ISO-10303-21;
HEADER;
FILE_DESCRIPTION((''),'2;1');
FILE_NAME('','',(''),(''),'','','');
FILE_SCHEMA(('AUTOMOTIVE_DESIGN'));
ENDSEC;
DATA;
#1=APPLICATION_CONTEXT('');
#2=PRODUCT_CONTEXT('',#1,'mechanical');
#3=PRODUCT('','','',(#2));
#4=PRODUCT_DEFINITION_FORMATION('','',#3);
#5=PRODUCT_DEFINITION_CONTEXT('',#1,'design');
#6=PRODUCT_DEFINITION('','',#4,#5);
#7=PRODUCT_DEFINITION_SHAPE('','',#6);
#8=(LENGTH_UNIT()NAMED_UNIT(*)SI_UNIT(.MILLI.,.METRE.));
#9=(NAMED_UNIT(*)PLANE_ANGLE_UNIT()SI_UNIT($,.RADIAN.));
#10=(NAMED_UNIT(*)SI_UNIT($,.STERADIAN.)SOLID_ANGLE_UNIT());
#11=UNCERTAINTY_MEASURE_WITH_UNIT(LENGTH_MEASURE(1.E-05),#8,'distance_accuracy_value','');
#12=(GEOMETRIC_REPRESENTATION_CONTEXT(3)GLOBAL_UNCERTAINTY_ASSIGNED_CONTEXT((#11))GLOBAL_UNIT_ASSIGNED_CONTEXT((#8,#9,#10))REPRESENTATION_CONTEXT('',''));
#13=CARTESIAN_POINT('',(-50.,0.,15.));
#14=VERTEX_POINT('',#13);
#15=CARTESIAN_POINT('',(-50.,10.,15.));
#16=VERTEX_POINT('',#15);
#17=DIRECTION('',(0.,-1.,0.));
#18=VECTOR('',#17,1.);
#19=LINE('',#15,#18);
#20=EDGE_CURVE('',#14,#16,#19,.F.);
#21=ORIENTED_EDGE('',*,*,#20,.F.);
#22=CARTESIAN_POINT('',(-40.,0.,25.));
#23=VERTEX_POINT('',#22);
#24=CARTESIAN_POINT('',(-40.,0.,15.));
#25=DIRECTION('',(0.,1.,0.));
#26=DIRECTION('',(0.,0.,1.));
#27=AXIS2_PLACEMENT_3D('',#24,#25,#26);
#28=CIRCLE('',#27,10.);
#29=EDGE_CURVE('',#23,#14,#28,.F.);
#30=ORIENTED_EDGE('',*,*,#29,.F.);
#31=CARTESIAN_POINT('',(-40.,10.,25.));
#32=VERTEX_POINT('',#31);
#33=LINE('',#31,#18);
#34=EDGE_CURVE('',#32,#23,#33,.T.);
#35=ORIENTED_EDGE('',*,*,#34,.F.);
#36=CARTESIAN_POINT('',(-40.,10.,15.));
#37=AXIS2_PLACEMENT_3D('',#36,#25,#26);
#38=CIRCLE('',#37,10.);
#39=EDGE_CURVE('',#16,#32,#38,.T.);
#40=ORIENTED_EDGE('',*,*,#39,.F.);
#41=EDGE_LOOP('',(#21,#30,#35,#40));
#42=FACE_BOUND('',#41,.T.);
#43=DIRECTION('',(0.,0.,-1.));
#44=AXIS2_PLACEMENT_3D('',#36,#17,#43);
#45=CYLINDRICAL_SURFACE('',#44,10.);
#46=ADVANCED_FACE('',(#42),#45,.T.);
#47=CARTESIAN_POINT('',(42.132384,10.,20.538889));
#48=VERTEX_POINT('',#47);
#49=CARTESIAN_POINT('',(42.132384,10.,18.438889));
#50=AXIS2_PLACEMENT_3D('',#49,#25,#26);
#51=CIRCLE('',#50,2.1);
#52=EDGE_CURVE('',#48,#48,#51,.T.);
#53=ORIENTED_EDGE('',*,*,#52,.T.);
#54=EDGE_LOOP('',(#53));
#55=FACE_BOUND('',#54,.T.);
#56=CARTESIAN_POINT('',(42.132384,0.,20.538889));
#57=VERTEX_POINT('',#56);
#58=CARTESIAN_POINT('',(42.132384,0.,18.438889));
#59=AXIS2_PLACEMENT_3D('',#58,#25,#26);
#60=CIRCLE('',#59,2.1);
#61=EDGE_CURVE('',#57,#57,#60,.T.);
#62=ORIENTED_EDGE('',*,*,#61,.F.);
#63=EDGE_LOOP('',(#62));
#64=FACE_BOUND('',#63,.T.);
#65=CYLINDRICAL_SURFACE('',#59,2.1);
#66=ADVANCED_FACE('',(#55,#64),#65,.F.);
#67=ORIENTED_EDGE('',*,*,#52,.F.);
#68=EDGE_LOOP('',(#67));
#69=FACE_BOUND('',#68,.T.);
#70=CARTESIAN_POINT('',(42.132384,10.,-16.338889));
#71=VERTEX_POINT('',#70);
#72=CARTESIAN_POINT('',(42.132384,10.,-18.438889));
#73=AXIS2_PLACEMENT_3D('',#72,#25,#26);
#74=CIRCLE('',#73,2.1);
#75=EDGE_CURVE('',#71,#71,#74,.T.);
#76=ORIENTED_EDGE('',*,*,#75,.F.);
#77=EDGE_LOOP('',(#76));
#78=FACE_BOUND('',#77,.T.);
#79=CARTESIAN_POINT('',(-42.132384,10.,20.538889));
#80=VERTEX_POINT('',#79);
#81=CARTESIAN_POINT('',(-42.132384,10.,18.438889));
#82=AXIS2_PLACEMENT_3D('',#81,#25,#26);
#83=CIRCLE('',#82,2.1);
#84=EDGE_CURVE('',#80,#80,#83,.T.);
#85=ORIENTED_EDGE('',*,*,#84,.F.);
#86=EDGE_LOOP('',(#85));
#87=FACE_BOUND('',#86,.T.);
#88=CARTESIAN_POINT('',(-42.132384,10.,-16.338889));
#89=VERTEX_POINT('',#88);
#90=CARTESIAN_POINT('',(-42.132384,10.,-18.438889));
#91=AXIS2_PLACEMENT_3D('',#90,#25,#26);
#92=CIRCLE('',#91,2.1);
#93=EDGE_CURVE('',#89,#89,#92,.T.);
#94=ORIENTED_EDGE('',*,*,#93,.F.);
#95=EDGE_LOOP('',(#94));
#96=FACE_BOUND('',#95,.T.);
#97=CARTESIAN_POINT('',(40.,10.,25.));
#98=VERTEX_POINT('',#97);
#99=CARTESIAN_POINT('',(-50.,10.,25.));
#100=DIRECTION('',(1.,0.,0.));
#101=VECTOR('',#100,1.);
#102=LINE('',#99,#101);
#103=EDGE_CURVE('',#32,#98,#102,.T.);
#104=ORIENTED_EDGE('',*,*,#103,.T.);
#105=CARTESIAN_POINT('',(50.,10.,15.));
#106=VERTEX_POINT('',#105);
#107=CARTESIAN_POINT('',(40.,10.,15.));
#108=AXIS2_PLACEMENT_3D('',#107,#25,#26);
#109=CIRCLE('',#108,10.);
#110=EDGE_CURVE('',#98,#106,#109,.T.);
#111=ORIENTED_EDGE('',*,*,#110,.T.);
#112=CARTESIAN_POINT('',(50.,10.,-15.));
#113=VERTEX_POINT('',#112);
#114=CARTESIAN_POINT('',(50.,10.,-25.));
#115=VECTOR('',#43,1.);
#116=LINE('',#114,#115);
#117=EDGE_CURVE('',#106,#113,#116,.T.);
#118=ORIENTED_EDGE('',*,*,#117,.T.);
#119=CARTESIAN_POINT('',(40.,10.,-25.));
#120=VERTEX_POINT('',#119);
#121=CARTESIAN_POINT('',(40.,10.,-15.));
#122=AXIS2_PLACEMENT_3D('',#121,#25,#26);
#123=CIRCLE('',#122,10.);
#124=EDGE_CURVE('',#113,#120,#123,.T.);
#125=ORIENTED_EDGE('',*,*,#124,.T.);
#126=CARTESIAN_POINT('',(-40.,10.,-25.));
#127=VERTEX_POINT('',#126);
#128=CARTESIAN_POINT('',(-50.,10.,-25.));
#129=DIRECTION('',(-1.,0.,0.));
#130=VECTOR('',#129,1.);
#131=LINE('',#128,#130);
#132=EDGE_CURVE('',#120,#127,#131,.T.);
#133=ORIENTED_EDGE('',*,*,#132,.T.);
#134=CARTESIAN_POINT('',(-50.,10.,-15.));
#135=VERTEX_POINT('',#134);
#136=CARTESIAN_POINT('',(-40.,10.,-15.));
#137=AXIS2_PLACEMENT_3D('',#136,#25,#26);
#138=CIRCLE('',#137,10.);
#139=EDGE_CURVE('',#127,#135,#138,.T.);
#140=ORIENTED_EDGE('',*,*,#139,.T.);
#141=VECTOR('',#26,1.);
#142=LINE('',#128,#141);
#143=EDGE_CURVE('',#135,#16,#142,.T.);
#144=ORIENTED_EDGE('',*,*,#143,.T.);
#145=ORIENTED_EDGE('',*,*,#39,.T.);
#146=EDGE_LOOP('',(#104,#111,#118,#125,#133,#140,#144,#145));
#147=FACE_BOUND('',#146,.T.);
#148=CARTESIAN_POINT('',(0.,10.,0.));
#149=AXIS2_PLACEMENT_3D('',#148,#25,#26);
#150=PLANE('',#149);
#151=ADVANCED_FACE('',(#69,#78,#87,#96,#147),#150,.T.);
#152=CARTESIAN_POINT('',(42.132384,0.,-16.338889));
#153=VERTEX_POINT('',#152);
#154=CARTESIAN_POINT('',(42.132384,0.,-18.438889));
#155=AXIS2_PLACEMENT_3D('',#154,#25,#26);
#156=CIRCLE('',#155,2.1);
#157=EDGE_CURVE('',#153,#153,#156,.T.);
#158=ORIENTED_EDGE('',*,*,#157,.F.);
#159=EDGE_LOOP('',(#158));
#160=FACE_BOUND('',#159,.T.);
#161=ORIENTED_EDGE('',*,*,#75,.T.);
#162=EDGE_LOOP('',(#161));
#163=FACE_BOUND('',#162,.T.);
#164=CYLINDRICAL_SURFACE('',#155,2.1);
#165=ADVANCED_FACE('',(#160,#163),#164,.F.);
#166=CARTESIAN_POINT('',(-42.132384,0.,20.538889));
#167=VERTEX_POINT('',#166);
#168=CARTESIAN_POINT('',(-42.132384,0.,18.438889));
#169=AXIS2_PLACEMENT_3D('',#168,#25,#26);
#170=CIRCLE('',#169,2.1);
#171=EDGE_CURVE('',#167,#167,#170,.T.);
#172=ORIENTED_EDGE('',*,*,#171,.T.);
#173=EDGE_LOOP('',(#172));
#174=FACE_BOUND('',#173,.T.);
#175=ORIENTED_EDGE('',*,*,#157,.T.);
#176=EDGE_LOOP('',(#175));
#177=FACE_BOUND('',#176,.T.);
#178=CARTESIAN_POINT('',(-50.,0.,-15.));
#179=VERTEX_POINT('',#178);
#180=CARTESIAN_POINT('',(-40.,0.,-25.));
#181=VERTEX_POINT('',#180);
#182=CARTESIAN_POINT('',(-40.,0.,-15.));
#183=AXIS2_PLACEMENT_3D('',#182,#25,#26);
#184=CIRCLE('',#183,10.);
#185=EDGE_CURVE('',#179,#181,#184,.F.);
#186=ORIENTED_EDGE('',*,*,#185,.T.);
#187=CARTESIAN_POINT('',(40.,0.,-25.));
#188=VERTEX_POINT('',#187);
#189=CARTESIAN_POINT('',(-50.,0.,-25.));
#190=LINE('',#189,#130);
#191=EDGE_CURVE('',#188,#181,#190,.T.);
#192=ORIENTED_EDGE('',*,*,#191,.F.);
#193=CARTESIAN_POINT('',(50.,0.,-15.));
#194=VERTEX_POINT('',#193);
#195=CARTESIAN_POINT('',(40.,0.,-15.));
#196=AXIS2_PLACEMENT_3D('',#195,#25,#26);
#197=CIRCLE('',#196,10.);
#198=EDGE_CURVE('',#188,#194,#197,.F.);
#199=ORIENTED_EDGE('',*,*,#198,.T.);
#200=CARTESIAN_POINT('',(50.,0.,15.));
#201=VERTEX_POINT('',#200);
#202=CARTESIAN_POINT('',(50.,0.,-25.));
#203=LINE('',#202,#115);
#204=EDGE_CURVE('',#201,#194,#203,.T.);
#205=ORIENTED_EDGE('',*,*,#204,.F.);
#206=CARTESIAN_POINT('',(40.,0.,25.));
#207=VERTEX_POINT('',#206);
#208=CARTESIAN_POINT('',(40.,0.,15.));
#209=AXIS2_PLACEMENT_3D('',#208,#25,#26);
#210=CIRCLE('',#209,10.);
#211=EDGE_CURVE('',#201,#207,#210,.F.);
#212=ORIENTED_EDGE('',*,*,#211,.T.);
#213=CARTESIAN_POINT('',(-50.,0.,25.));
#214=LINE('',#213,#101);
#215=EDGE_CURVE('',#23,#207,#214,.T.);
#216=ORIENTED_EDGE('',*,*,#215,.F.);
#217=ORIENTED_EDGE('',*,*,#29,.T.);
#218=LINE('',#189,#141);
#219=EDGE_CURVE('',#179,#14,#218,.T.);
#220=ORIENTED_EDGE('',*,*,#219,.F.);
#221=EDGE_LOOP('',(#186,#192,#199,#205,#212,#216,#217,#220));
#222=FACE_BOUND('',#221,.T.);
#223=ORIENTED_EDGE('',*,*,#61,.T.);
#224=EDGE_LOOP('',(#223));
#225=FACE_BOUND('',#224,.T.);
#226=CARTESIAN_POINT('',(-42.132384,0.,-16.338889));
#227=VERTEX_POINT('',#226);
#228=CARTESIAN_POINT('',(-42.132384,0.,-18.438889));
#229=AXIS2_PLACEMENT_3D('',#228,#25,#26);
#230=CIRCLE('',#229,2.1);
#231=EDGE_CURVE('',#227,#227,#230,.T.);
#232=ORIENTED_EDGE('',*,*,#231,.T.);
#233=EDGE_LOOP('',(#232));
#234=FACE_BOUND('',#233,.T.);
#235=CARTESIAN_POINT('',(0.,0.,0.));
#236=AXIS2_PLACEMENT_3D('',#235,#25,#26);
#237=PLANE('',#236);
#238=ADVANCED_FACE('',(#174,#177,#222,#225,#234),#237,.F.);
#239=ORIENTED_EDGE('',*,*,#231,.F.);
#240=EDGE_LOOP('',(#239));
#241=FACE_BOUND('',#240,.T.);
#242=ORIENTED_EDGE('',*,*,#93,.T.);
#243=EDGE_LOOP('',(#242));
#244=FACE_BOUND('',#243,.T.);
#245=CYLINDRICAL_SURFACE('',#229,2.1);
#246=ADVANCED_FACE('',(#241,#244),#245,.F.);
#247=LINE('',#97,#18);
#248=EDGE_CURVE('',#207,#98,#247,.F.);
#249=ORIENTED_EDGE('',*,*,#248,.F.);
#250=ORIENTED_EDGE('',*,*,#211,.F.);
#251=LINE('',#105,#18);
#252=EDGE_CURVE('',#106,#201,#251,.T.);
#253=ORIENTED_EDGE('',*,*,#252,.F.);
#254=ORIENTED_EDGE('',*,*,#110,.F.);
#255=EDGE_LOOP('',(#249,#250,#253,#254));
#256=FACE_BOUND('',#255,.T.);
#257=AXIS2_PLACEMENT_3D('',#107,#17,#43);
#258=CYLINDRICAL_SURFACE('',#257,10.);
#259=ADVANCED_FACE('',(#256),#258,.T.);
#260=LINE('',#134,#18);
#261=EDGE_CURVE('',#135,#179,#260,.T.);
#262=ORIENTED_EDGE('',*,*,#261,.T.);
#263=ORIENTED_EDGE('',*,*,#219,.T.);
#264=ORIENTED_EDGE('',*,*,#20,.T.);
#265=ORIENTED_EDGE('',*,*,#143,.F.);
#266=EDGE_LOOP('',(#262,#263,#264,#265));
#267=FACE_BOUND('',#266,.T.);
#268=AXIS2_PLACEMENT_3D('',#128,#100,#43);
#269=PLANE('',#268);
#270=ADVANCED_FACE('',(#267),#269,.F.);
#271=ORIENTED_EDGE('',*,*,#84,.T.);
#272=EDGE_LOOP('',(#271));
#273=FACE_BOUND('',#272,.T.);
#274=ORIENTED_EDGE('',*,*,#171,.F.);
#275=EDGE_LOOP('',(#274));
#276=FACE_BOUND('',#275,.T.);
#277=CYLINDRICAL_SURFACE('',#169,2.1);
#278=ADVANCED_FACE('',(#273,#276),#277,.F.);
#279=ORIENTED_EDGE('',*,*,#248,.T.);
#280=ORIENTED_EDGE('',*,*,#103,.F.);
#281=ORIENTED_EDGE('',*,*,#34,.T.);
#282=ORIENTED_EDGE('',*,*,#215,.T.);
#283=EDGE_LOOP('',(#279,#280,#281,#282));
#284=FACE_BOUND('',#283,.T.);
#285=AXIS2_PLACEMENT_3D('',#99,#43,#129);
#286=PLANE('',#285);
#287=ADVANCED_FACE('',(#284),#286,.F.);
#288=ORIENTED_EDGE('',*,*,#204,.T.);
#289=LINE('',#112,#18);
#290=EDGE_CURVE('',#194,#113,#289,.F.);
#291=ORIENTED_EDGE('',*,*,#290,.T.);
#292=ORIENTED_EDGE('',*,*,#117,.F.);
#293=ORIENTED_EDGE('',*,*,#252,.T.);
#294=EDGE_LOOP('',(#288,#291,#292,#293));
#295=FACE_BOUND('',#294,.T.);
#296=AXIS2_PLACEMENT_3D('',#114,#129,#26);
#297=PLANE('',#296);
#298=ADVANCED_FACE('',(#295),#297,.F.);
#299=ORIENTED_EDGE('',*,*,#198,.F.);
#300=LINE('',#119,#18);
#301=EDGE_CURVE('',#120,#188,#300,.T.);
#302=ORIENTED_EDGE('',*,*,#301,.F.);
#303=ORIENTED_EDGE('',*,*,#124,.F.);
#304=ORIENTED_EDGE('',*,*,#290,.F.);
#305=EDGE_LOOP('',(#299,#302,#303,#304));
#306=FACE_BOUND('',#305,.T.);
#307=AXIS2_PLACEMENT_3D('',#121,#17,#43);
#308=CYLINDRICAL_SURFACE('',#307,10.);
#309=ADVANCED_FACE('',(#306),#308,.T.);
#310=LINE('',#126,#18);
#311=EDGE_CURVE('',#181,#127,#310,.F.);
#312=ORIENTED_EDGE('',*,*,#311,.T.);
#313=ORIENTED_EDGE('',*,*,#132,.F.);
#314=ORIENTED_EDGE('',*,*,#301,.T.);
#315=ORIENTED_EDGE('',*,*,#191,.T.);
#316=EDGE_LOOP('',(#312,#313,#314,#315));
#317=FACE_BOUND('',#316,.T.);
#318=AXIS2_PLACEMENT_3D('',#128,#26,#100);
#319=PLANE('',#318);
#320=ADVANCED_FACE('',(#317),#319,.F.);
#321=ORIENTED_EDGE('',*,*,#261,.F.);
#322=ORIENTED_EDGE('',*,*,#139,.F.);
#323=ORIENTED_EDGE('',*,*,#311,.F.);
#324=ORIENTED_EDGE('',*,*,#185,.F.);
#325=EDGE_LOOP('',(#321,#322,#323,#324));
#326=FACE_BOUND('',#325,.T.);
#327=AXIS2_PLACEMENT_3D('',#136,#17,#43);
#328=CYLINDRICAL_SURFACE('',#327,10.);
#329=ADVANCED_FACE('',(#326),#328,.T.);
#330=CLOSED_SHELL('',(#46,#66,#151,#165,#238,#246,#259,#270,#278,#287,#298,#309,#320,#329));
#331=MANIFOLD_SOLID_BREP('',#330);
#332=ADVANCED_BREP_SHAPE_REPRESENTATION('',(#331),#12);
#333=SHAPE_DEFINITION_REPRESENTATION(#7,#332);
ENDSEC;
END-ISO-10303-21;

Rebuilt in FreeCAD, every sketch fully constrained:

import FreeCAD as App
import Part
import Sketcher


def edges_at(feature, points):
    """Names of the edges that pass closest to the given points."""
    edges = feature.Shape.Edges
    near = lambda p: min(range(len(edges)), key=lambda i: edges[i].distToShape(Part.Vertex(*p))[0])
    return sorted({f"Edge{near(p) + 1}" for p in points})

doc = App.newDocument("Part")
body = doc.addObject("PartDesign::Body", "Body")

# Sketch on XZ plane
sketch1 = body.newObject("Sketcher::SketchObject", "Sketch")
sketch1.AttachmentSupport = (doc.getObject("XZ_Plane"), [""])
sketch1.MapMode = "FlatFace"
sketch1.addGeometry(Part.LineSegment(App.Vector(-50, -25, 0), App.Vector(-50, 25, 0)), False)
sketch1.addGeometry(Part.LineSegment(App.Vector(-50, 25, 0), App.Vector(50, 25, 0)), False)
sketch1.addGeometry(Part.LineSegment(App.Vector(50, 25, 0), App.Vector(50, -25, 0)), False)
sketch1.addGeometry(Part.LineSegment(App.Vector(50, -25, 0), App.Vector(-50, -25, 0)), False)
sketch1.addConstraint(Sketcher.Constraint("Coincident", 0, 2, 1, 1))
sketch1.addConstraint(Sketcher.Constraint("Coincident", 1, 2, 2, 1))
sketch1.addConstraint(Sketcher.Constraint("Coincident", 2, 2, 3, 1))
sketch1.addConstraint(Sketcher.Constraint("Coincident", 3, 2, 0, 1))
sketch1.addConstraint(Sketcher.Constraint("Vertical", 0))
sketch1.addConstraint(Sketcher.Constraint("Horizontal", 1))
sketch1.addConstraint(Sketcher.Constraint("Vertical", 2))
sketch1.addConstraint(Sketcher.Constraint("Horizontal", 3))
sketch1.addConstraint(Sketcher.Constraint("Symmetric", 0, 2, 2, 2, -1, 1))
sketch1.addConstraint(Sketcher.Constraint("DistanceX", 1, 1, 1, 2, 100.0))
sketch1.addConstraint(Sketcher.Constraint("DistanceY", 0, 1, 0, 2, 50.0))
pad1 = body.newObject("PartDesign::Pad", "Pad")
pad1.Profile = sketch1
pad1.Length = 10
pad1.Reversed = True
doc.recompute()

fillet = body.newObject("PartDesign::Fillet", "Fillet")
fillet.Base = (pad1, edges_at(pad1, [
    (-50, 5, -25),
    (50, 5, -25),
    (50, 5, 25),
    (-50, 5, 25),
]))
fillet.Radius = 10

# Sketch on XZ plane
sketch2 = body.newObject("Sketcher::SketchObject", "Sketch001")
sketch2.AttachmentSupport = (doc.getObject("XZ_Plane"), [""])
sketch2.MapMode = "FlatFace"
sketch2.AttachmentOffset = App.Placement(App.Vector(0, 0, -10), App.Rotation())
sketch2.addGeometry(Part.Circle(App.Vector(-42.132384, -18.438889, 0), App.Vector(0, 0, 1), 2.1), False)
sketch2.addGeometry(Part.Circle(App.Vector(42.132384, -18.438889, 0), App.Vector(0, 0, 1), 2.1), False)
sketch2.addGeometry(Part.Circle(App.Vector(42.132384, 18.438889, 0), App.Vector(0, 0, 1), 2.1), False)
sketch2.addGeometry(Part.Circle(App.Vector(-42.132384, 18.438889, 0), App.Vector(0, 0, 1), 2.1), False)
sketch2.addConstraint(Sketcher.Constraint("Equal", 0, 1))
sketch2.addConstraint(Sketcher.Constraint("Equal", 1, 2))
sketch2.addConstraint(Sketcher.Constraint("Equal", 2, 3))
sketch2.addConstraint(Sketcher.Constraint("Symmetric", 0, 3, 2, 3, -1, 1))
sketch2.addConstraint(Sketcher.Constraint("Symmetric", 1, 3, 3, 3, -1, 1))
sketch2.addConstraint(Sketcher.Constraint("Symmetric", 0, 3, 1, 3, -2))
sketch2.addConstraint(Sketcher.Constraint("Diameter", 0, 4.2))
sketch2.addConstraint(Sketcher.Constraint("DistanceY", 0, 3, -1, 1, 18.438889))
sketch2.addConstraint(Sketcher.Constraint("DistanceX", 0, 3, 1, 3, 84.264769))
pocket1 = body.newObject("PartDesign::Pocket", "Pocket")
pocket1.Profile = sketch2
pocket1.Length = 10
pocket1.Reversed = True

doc.recompute()
